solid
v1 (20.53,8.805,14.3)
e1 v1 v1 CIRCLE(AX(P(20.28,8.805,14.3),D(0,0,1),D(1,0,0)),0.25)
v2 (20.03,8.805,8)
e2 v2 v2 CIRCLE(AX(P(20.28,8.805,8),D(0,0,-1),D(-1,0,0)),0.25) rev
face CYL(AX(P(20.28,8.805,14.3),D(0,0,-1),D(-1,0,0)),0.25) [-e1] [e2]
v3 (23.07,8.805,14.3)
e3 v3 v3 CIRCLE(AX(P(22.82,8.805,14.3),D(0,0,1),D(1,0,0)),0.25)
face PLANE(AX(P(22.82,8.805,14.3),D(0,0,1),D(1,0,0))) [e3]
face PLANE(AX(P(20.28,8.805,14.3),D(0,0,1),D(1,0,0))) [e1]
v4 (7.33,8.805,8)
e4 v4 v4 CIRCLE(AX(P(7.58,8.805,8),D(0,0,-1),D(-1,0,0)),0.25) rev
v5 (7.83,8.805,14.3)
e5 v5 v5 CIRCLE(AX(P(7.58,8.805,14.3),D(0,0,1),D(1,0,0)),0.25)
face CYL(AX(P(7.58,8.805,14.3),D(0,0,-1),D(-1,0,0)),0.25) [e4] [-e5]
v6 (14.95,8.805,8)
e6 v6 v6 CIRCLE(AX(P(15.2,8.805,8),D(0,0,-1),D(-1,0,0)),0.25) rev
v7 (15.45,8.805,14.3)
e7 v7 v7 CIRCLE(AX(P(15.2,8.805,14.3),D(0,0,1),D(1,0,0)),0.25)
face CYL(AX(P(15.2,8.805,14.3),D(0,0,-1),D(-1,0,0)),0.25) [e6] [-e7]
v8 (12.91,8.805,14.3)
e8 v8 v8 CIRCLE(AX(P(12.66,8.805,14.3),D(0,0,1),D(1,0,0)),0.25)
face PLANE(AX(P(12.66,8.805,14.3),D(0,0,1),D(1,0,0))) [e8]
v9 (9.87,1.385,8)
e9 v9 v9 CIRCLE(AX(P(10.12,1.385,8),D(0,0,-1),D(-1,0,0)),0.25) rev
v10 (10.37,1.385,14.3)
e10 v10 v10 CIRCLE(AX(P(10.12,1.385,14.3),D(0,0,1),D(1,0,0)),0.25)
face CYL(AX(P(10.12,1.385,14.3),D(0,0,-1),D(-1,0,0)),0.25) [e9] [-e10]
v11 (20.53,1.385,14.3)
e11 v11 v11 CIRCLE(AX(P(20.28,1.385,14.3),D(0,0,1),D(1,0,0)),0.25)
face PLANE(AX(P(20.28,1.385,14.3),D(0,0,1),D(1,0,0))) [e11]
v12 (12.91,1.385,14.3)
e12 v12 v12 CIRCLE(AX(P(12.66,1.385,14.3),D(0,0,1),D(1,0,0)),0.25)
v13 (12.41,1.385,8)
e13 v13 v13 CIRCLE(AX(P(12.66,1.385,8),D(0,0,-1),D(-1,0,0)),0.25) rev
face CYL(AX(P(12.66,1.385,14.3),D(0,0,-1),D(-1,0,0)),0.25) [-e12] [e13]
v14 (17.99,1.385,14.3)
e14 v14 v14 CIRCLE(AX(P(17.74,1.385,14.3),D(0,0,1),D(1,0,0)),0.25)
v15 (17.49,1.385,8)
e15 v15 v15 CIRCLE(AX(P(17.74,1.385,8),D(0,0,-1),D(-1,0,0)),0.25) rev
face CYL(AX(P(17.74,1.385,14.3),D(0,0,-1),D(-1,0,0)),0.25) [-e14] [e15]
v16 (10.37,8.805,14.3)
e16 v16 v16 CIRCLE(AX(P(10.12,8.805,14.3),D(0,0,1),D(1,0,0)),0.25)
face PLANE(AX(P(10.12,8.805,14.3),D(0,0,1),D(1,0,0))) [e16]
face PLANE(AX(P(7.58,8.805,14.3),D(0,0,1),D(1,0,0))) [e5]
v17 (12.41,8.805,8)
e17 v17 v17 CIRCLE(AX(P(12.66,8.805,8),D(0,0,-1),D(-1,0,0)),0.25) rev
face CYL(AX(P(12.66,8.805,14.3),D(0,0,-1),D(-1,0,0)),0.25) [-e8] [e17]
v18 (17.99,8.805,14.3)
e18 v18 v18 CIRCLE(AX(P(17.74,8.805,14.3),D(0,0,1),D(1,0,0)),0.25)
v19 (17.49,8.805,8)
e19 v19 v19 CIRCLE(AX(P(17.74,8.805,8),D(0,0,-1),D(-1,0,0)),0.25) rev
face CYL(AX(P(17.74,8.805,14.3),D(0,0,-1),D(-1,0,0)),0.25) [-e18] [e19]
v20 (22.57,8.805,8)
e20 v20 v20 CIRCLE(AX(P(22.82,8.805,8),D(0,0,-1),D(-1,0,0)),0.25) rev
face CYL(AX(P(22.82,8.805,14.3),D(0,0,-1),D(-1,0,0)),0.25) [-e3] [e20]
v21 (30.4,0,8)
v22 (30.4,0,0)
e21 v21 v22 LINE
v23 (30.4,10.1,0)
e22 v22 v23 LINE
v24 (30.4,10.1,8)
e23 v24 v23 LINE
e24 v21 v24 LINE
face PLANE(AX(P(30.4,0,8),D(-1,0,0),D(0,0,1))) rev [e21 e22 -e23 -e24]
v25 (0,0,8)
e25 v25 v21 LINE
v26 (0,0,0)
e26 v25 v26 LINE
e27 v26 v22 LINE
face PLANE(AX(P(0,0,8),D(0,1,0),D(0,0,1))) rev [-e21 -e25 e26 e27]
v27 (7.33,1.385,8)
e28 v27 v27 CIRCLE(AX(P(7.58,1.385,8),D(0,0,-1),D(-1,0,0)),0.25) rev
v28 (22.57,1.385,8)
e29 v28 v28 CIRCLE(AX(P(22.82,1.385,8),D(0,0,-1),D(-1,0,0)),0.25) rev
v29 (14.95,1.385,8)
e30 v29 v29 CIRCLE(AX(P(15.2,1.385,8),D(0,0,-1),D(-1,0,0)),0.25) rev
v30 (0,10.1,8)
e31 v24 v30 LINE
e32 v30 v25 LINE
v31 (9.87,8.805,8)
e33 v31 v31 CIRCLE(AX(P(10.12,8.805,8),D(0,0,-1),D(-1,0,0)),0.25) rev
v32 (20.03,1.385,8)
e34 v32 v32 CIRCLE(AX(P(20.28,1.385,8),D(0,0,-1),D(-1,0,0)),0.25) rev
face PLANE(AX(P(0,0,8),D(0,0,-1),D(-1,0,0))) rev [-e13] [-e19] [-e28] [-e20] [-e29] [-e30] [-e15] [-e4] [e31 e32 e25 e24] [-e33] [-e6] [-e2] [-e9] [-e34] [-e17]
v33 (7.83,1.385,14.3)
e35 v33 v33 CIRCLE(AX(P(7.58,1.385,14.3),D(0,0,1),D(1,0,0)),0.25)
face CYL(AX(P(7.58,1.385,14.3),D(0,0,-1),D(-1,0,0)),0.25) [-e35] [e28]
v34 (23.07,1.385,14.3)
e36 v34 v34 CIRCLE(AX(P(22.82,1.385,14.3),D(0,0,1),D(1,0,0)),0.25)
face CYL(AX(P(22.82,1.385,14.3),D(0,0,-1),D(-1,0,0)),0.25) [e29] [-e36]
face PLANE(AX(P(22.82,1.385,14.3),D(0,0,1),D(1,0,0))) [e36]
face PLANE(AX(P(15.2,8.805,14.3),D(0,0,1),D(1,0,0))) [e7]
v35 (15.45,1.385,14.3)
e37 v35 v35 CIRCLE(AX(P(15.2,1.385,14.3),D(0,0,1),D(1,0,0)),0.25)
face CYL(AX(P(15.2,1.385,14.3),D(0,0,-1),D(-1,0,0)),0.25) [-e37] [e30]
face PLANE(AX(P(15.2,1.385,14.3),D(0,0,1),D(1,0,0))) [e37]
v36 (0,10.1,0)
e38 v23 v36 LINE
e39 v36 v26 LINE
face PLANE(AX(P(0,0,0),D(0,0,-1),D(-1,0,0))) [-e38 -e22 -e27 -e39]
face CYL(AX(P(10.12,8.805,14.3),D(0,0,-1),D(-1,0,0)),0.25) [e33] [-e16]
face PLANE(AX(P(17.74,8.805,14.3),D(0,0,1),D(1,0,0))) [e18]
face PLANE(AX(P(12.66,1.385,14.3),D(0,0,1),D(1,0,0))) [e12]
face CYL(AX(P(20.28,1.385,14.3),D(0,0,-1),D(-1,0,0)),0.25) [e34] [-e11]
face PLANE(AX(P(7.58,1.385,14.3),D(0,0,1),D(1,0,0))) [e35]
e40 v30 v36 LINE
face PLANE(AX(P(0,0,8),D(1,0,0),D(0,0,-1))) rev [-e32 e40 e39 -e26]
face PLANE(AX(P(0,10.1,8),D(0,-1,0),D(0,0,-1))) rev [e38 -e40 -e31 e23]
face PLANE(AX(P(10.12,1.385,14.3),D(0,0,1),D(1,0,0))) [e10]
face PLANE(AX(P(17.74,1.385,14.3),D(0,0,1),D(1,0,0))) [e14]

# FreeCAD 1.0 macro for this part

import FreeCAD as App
import Part
import Sketcher

V = App.Vector
Q = App.Units.Quantity


def add_polygon(sketch, points):
    """Adds a closed chain of lines whose ends are joined by coincident constraints."""
    first, n = sketch.GeometryCount, len(points)
    for a, b in zip(points, points[1:] + points[:1]):
        sketch.addGeometry(Part.LineSegment(App.Vector(*a, 0), App.Vector(*b, 0)), False)
    for i in range(n):
        sketch.addConstraint(Sketcher.Constraint("Coincident", first + i, 2, first + (i + 1) % n, 1))

doc = App.newDocument("Part")
params = doc.addObject("Spreadsheet::Sheet", "Params")
for row, (alias, value) in enumerate([
    ("sketch1_width", "30.4 mm"),
    ("sketch1_height", "10.1 mm"),
    ("pad1_length", "8 mm"),
    ("sketch2_diameter", "0.5 mm"),
    ("pad2_length", "6.3 mm"),
], start=1):
    params.set(f"A{row}", alias)
    params.set(f"B{row}", "=" + value)
    params.setAlias(f"B{row}", alias)

body = doc.addObject("PartDesign::Body", "Body")

# Sketch on XY plane
sketch1 = doc.addObject("Sketcher::SketchObject", "Sketch")
body.addObject(sketch1)
sketch1.AttachmentSupport = (doc.XY_Plane, [""])
sketch1.MapMode = "FlatFace"
add_polygon(sketch1, [(0, 10), (0, 0), (30, 0), (30, 10)])  # lines 0-3
sketch1.addConstraint([
    Sketcher.Constraint("Vertical", 0),
    Sketcher.Constraint("Horizontal", 1),
    Sketcher.Constraint("Vertical", 2),
    Sketcher.Constraint("Horizontal", 3),
    Sketcher.Constraint("Coincident", 0, 2, -1, 1),
    Sketcher.Constraint("DistanceX", 1, 1, 1, 2, Q("30.4 mm")),
    Sketcher.Constraint("DistanceY", 0, 2, 0, 1, Q("10.1 mm")),
])
sketch1.setExpression("Constraints[9]", "Params.sketch1_width")
sketch1.setExpression("Constraints[10]", "Params.sketch1_height")
pad1 = doc.addObject("PartDesign::Pad", "Pad")
body.addObject(pad1)
pad1.Profile = sketch1
pad1.setExpression("Length", "Params.pad1_length")

# Sketch on XY plane
sketch2 = doc.addObject("Sketcher::SketchObject", "Sketch001")
body.addObject(sketch2)
sketch2.AttachmentSupport = (doc.XY_Plane, [""])
sketch2.MapMode = "FlatFace"
sketch2.AttachmentOffset = App.Placement(V(0, 0, 8), App.Rotation())
sketch2.addGeometry([
    Part.Circle(V(7.58, 8.8, 0), V(0, 0, 1), 0.25),  # 0
    Part.Circle(V(10.12, 8.8, 0), V(0, 0, 1), 0.25),  # 1
    Part.Circle(V(12.66, 8.8, 0), V(0, 0, 1), 0.25),  # 2
    Part.Circle(V(15.2, 8.8, 0), V(0, 0, 1), 0.25),  # 3
    Part.Circle(V(17.74, 8.8, 0), V(0, 0, 1), 0.25),  # 4
    Part.Circle(V(20.28, 8.8, 0), V(0, 0, 1), 0.25),  # 5
    Part.Circle(V(22.82, 8.8, 0), V(0, 0, 1), 0.25),  # 6
    Part.Circle(V(10.12, 1.39, 0), V(0, 0, 1), 0.25),  # 7
    Part.Circle(V(12.66, 1.39, 0), V(0, 0, 1), 0.25),  # 8
    Part.Circle(V(15.2, 1.39, 0), V(0, 0, 1), 0.25),  # 9
    Part.Circle(V(17.74, 1.39, 0), V(0, 0, 1), 0.25),  # 10
    Part.Circle(V(20.28, 1.39, 0), V(0, 0, 1), 0.25),  # 11
    Part.Circle(V(22.82, 1.39, 0), V(0, 0, 1), 0.25),  # 12
    Part.Circle(V(7.58, 1.39, 0), V(0, 0, 1), 0.25),  # 13
], False)
sketch2.addConstraint([
    Sketcher.Constraint("Equal", 0, 1),
    Sketcher.Constraint("Equal", 1, 2),
    Sketcher.Constraint("Equal", 2, 3),
    Sketcher.Constraint("Equal", 3, 4),
    Sketcher.Constraint("Equal", 4, 5),
    Sketcher.Constraint("Equal", 5, 6),
    Sketcher.Constraint("Equal", 6, 7),
    Sketcher.Constraint("Equal", 7, 8),
    Sketcher.Constraint("Equal", 8, 9),
    Sketcher.Constraint("Equal", 9, 10),
    Sketcher.Constraint("Equal", 10, 11),
    Sketcher.Constraint("Equal", 11, 12),
    Sketcher.Constraint("Equal", 12, 13),
    Sketcher.Constraint("Horizontal", 0, 3, 1, 3),
    Sketcher.Constraint("Horizontal", 1, 3, 2, 3),
    Sketcher.Constraint("Horizontal", 2, 3, 3, 3),
    Sketcher.Constraint("Horizontal", 3, 3, 4, 3),
    Sketcher.Constraint("Horizontal", 4, 3, 5, 3),
    Sketcher.Constraint("Horizontal", 5, 3, 6, 3),
    Sketcher.Constraint("Horizontal", 7, 3, 8, 3),
    Sketcher.Constraint("Horizontal", 8, 3, 9, 3),
    Sketcher.Constraint("Horizontal", 9, 3, 10, 3),
    Sketcher.Constraint("Horizontal", 10, 3, 11, 3),
    Sketcher.Constraint("Horizontal", 11, 3, 12, 3),
    Sketcher.Constraint("Horizontal", 12, 3, 13, 3),
    Sketcher.Constraint("Vertical", 1, 3, 7, 3),
    Sketcher.Constraint("Vertical", 2, 3, 8, 3),
    Sketcher.Constraint("Vertical", 3, 3, 9, 3),
    Sketcher.Constraint("Vertical", 4, 3, 10, 3),
    Sketcher.Constraint("Vertical", 5, 3, 11, 3),
    Sketcher.Constraint("Vertical", 6, 3, 12, 3),
    Sketcher.Constraint("Vertical", 0, 3, 13, 3),
    Sketcher.Constraint("Diameter", 0, Q("0.5 mm")),
    Sketcher.Constraint("DistanceX", -1, 1, 3, 3, Q("15.2 mm")),
    Sketcher.Constraint("DistanceX", 0, 3, 5, 3, Q("12.7 mm")),
    Sketcher.Constraint("DistanceX", 1, 3, 6, 3, Q("12.7 mm")),
    Sketcher.Constraint("DistanceX", -1, 1, 0, 3, Q("7.58 mm")),
    Sketcher.Constraint("DistanceX", -1, 1, 1, 3, Q("10.12 mm")),
    Sketcher.Constraint("DistanceX", -1, 1, 2, 3, Q("12.66 mm")),
    Sketcher.Constraint("DistanceX", -1, 1, 4, 3, Q("17.74 mm")),
    Sketcher.Constraint("DistanceY", 7, 3, 1, 3, Q("7.42 mm")),
    Sketcher.Constraint("DistanceY", -1, 1, 0, 3, Q("8.805 mm")),
])
sketch2.setExpression("Constraints[32]", "Params.sketch2_diameter")
pad2 = doc.addObject("PartDesign::Pad", "Pad001")
body.addObject(pad2)
pad2.Profile = sketch2
pad2.setExpression("Length", "Params.pad2_length")

doc.recompute()
